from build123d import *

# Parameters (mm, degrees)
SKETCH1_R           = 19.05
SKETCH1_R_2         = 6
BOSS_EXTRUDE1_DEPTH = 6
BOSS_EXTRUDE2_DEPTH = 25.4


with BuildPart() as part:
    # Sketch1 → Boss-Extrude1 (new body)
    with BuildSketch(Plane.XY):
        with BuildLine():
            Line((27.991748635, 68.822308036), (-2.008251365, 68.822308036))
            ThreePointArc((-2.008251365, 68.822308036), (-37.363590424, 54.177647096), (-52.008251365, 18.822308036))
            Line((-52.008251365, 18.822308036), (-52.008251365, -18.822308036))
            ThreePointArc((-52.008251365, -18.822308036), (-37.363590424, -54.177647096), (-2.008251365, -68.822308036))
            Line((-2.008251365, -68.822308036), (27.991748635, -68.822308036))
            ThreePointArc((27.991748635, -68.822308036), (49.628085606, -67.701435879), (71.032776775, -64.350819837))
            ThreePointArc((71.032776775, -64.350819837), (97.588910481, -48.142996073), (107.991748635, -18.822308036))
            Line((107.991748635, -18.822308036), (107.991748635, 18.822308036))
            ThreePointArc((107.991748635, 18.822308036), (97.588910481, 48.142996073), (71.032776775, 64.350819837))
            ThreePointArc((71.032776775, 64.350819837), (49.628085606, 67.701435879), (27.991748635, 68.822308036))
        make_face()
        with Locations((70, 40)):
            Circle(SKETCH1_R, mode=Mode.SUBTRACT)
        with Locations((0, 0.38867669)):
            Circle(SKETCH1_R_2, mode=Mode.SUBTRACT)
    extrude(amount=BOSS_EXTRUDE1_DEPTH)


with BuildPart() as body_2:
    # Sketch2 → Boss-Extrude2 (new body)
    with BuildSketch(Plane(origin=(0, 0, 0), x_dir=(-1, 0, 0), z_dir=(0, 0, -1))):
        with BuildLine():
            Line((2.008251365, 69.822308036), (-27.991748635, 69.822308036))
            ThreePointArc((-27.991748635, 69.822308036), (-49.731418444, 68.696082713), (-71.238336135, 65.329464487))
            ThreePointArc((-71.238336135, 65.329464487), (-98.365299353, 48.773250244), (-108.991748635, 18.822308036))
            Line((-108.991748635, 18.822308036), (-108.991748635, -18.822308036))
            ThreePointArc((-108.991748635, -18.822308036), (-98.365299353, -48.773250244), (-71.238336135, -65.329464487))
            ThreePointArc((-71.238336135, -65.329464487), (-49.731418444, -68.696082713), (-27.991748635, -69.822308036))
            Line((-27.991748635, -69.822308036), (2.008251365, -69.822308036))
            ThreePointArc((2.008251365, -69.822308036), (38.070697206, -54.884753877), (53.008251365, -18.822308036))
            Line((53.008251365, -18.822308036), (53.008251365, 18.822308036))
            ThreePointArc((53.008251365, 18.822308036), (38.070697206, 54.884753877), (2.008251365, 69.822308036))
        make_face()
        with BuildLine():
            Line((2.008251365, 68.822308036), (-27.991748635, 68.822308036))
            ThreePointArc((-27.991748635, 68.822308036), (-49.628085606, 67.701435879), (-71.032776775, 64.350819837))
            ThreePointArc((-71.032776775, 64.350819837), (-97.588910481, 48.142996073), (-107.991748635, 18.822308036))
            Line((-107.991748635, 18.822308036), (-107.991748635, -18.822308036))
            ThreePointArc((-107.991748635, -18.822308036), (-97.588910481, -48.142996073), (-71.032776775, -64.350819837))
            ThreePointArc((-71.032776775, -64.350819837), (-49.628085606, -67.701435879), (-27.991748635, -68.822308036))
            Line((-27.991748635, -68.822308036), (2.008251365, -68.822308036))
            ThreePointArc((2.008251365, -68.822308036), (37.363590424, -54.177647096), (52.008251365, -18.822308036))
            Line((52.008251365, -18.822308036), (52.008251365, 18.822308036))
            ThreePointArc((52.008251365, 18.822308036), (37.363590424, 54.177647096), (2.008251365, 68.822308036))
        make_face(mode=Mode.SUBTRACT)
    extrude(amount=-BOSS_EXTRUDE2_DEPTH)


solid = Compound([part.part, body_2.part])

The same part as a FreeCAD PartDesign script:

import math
import FreeCAD as App
import Part
import Sketcher

V = App.Vector
Q = App.Units.Quantity

doc = App.newDocument("Part")
body = doc.addObject("PartDesign::Body", "Body")

# Sketch on XY plane
sketch1 = doc.addObject("Sketcher::SketchObject", "Sketch")
body.addObject(sketch1)
sketch1.AttachmentSupport = (doc.XY_Plane, [""])
sketch1.MapMode = "FlatFace"
sketch1.addGeometry(Part.LineSegment(V(28, 69, 0), V(-2, 69, 0)), False)
sketch1.addGeometry(Part.ArcOfCircle(Part.Circle(V(-2, 19, 0), V(0, 0, 1), 50), math.radians(90), math.radians(180)), False)
sketch1.addGeometry(Part.LineSegment(V(-52, 19, 0), V(-52, -19, 0)), False)
sketch1.addGeometry(Part.ArcOfCircle(Part.Circle(V(-2, -19, 0), V(0, 0, 1), 50), math.radians(180), math.radians(270)), False)
sketch1.addGeometry(Part.LineSegment(V(-2, -69, 0), V(28, -69, 0)), False)
sketch1.addGeometry(Part.ArcOfCircle(Part.Circle(V(28, 141, 0), V(0, 0, 1), 209), math.radians(-90), math.radians(-78.14)), False)
sketch1.addGeometry(Part.ArcOfCircle(Part.Circle(V(61, -19, 0), V(0, 0, 1), 47), math.radians(-78), math.radians(0)), False)
sketch1.addGeometry(Part.LineSegment(V(108, -19, 0), V(108, 19, 0)), False)
sketch1.addGeometry(Part.ArcOfCircle(Part.Circle(V(61, 19, 0), V(0, 0, 1), 47), math.radians(0), math.radians(78)), False)
sketch1.addGeometry(Part.ArcOfCircle(Part.Circle(V(28, -141, 0), V(0, 0, 1), 209), math.radians(78.14), math.radians(90)), False)
sketch1.addGeometry(Part.Circle(V(0, 0, 0), V(0, 0, 1), 6), False)
sketch1.addGeometry(Part.Circle(V(70, 40, 0), V(0, 0, 1), 19), False)
sketch1.addConstraint(Sketcher.Constraint("Tangent", 0, 2, 1, 1))
sketch1.addConstraint(Sketcher.Constraint("Tangent", 1, 2, 2, 1))
sketch1.addConstraint(Sketcher.Constraint("Tangent", 2, 2, 3, 1))
sketch1.addConstraint(Sketcher.Constraint("Tangent", 3, 2, 4, 1))
sketch1.addConstraint(Sketcher.Constraint("Tangent", 4, 2, 5, 1))
sketch1.addConstraint(Sketcher.Constraint("Tangent", 5, 2, 6, 1))
sketch1.addConstraint(Sketcher.Constraint("Tangent", 6, 2, 7, 1))
sketch1.addConstraint(Sketcher.Constraint("Tangent", 7, 2, 8, 1))
sketch1.addConstraint(Sketcher.Constraint("Tangent", 8, 2, 9, 1))
sketch1.addConstraint(Sketcher.Constraint("Tangent", 9, 2, 0, 1))
sketch1.addConstraint(Sketcher.Constraint("Horizontal", 0))
sketch1.addConstraint(Sketcher.Constraint("Vertical", 2))
sketch1.addConstraint(Sketcher.Constraint("Horizontal", 4))
sketch1.addConstraint(Sketcher.Constraint("Vertical", 7))
sketch1.addConstraint(Sketcher.Constraint("Equal", 1, 3))
sketch1.addConstraint(Sketcher.Constraint("Equal", 6, 8))
sketch1.addConstraint(Sketcher.Constraint("Equal", 5, 9))
sketch1.addConstraint(Sketcher.Constraint("Symmetric", 5, 3, 9, 3, -1))
sketch1.addConstraint(Sketcher.Constraint("PointOnObject", 10, 3, -2))
sketch1.addConstraint(Sketcher.Constraint("Horizontal", 3, 3, 6, 3))
sketch1.addConstraint(Sketcher.Constraint("Diameter", 10, Q("12 mm")))
sketch1.addConstraint(Sketcher.Constraint("Radius", 1, Q("50 mm")))
sketch1.addConstraint(Sketcher.Constraint("Diameter", 11, Q("38.1 mm")))
sketch1.addConstraint(Sketcher.Constraint("DistanceX", 0, 2, 0, 1, Q("30 mm")))
sketch1.addConstraint(Sketcher.Constraint("DistanceX", -1, 1, 11, 3, Q("70 mm")))
sketch1.addConstraint(Sketcher.Constraint("DistanceY", -1, 1, 11, 3, Q("40 mm")))
sketch1.addConstraint(Sketcher.Constraint("DistanceX", 4, 2, 6, 2, Q("80 mm")))
sketch1.addConstraint(Sketcher.Constraint("Radius", 5, Q("209.38491 mm")))
sketch1.addConstraint(Sketcher.Constraint("DistanceY", 2, 2, 2, 1, Q("37.644616 mm")))
sketch1.addConstraint(Sketcher.Constraint("DistanceX", 1, 3, -1, 1, Q("2.008251 mm")))
sketch1.addConstraint(Sketcher.Constraint("DistanceY", 10, 3, 1, 3, Q("18.433631 mm")))
pad1 = doc.addObject("PartDesign::Pad", "Pad")
body.addObject(pad1)
pad1.Profile = sketch1
pad1.Length = 6
body2 = doc.addObject("PartDesign::Body", "Body001")

# Sketch on XY plane
sketch2 = doc.addObject("Sketcher::SketchObject", "Sketch001")
body2.addObject(sketch2)
sketch2.AttachmentSupport = (doc.getObject("XY_Plane001"), [""])
sketch2.MapMode = "FlatFace"
sketch2.addGeometry(Part.LineSegment(V(-2, 70, 0), V(28, 70, 0)), False)
sketch2.addGeometry(Part.ArcOfCircle(Part.Circle(V(28, -141, 0), V(0, 0, 1), 210), math.radians(78.14), math.radians(90)), False)
sketch2.addGeometry(Part.ArcOfCircle(Part.Circle(V(61, 19, 0), V(0, 0, 1), 48), math.radians(0), math.radians(78)), False)
sketch2.addGeometry(Part.LineSegment(V(109, 19, 0), V(109, -19, 0)), False)
sketch2.addGeometry(Part.ArcOfCircle(Part.Circle(V(61, -19, 0), V(0, 0, 1), 48), math.radians(-78), math.radians(0)), False)
sketch2.addGeometry(Part.ArcOfCircle(Part.Circle(V(28, 141, 0), V(0, 0, 1), 210), math.radians(-90), math.radians(-78.14)), False)
sketch2.addGeometry(Part.LineSegment(V(28, -70, 0), V(-2, -70, 0)), False)
sketch2.addGeometry(Part.ArcOfCircle(Part.Circle(V(-2, -19, 0), V(0, 0, 1), 51), math.radians(180), math.radians(270)), False)
sketch2.addGeometry(Part.LineSegment(V(-53, -19, 0), V(-53, 19, 0)), False)
sketch2.addGeometry(Part.ArcOfCircle(Part.Circle(V(-2, 19, 0), V(0, 0, 1), 51), math.radians(90), math.radians(180)), False)
sketch2.addGeometry(Part.LineSegment(V(28, 69, 0), V(-2, 69, 0)), False)
sketch2.addGeometry(Part.ArcOfCircle(Part.Circle(V(-2, 19, 0), V(0, 0, 1), 50), math.radians(90), math.radians(180)), False)
sketch2.addGeometry(Part.LineSegment(V(-52, 19, 0), V(-52, -19, 0)), False)
sketch2.addGeometry(Part.ArcOfCircle(Part.Circle(V(-2, -19, 0), V(0, 0, 1), 50), math.radians(180), math.radians(270)), False)
sketch2.addGeometry(Part.LineSegment(V(-2, -69, 0), V(28, -69, 0)), False)
sketch2.addGeometry(Part.ArcOfCircle(Part.Circle(V(28, 141, 0), V(0, 0, 1), 209), math.radians(-90), math.radians(-78.14)), False)
sketch2.addGeometry(Part.ArcOfCircle(Part.Circle(V(61, -19, 0), V(0, 0, 1), 47), math.radians(-78), math.radians(0)), False)
sketch2.addGeometry(Part.LineSegment(V(108, -19, 0), V(108, 19, 0)), False)
sketch2.addGeometry(Part.ArcOfCircle(Part.Circle(V(61, 19, 0), V(0, 0, 1), 47), math.radians(0), math.radians(78)), False)
sketch2.addGeometry(Part.ArcOfCircle(Part.Circle(V(28, -141, 0), V(0, 0, 1), 209), math.radians(78.14), math.radians(90)), False)
sketch2.addConstraint(Sketcher.Constraint("Tangent", 0, 2, 1, 2))
sketch2.addConstraint(Sketcher.Constraint("Tangent", 1, 1, 2, 2))
sketch2.addConstraint(Sketcher.Constraint("Tangent", 2, 1, 3, 1))
sketch2.addConstraint(Sketcher.Constraint("Tangent", 3, 2, 4, 2))
sketch2.addConstraint(Sketcher.Constraint("Tangent", 4, 1, 5, 2))
sketch2.addConstraint(Sketcher.Constraint("Tangent", 5, 1, 6, 1))
sketch2.addConstraint(Sketcher.Constraint("Tangent", 6, 2, 7, 2))
sketch2.addConstraint(Sketcher.Constraint("Tangent", 7, 1, 8, 1))
sketch2.addConstraint(Sketcher.Constraint("Tangent", 8, 2, 9, 2))
sketch2.addConstraint(Sketcher.Constraint("Tangent", 9, 1, 0, 1))
sketch2.addConstraint(Sketcher.Constraint("Tangent", 10, 2, 11, 1))
sketch2.addConstraint(Sketcher.Constraint("Tangent", 11, 2, 12, 1))
sketch2.addConstraint(Sketcher.Constraint("Tangent", 12, 2, 13, 1))
sketch2.addConstraint(Sketcher.Constraint("Tangent", 13, 2, 14, 1))
sketch2.addConstraint(Sketcher.Constraint("Tangent", 14, 2, 15, 1))
sketch2.addConstraint(Sketcher.Constraint("Tangent", 15, 2, 16, 1))
sketch2.addConstraint(Sketcher.Constraint("Tangent", 16, 2, 17, 1))
sketch2.addConstraint(Sketcher.Constraint("Tangent", 17, 2, 18, 1))
sketch2.addConstraint(Sketcher.Constraint("Tangent", 18, 2, 19, 1))
sketch2.addConstraint(Sketcher.Constraint("Tangent", 19, 2, 10, 1))
sketch2.addConstraint(Sketcher.Constraint("Horizontal", 0))
sketch2.addConstraint(Sketcher.Constraint("Vertical", 3))
sketch2.addConstraint(Sketcher.Constraint("Horizontal", 6))
sketch2.addConstraint(Sketcher.Constraint("Vertical", 8))
sketch2.addConstraint(Sketcher.Constraint("Horizontal", 10))
sketch2.addConstraint(Sketcher.Constraint("Vertical", 12))
sketch2.addConstraint(Sketcher.Constraint("Horizontal", 14))
sketch2.addConstraint(Sketcher.Constraint("Vertical", 17))
sketch2.addConstraint(Sketcher.Constraint("Coincident", 11, 3, 9, 3))
sketch2.addConstraint(Sketcher.Constraint("Coincident", 13, 3, 7, 3))
sketch2.addConstraint(Sketcher.Constraint("Coincident", 15, 3, 5, 3))
sketch2.addConstraint(Sketcher.Constraint("Coincident", 16, 3, 4, 3))
sketch2.addConstraint(Sketcher.Constraint("Coincident", 18, 3, 2, 3))
sketch2.addConstraint(Sketcher.Constraint("Equal", 2, 4))
sketch2.addConstraint(Sketcher.Constraint("Equal", 1, 5))
sketch2.addConstraint(Sketcher.Constraint("Equal", 7, 9))
sketch2.addConstraint(Sketcher.Constraint("Equal", 15, 19))
sketch2.addConstraint(Sketcher.Constraint("Symmetric", 1, 3, 5, 3, -1))
sketch2.addConstraint(Sketcher.Constraint("Horizontal", 4, 3, 7, 3))
sketch2.addConstraint(Sketcher.Constraint("Radius", 7, Q("51 mm")))
sketch2.addConstraint(Sketcher.Constraint("Radius", 11, Q("50 mm")))
sketch2.addConstraint(Sketcher.Constraint("DistanceX", 0, 1, 0, 2, Q("30 mm")))
sketch2.addConstraint(Sketcher.Constraint("Radius", 1, Q("210.38491 mm")))
sketch2.addConstraint(Sketcher.Constraint("Radius", 2, Q("47.522006 mm")))
sketch2.addConstraint(Sketcher.Constraint("DistanceY", 3, 2, 3, 1, Q("37.644616 mm")))
sketch2.addConstraint(Sketcher.Constraint("DistanceX", -1, 1, 1, 3, Q("27.991749 mm")))
pad2 = doc.addObject("PartDesign::Pad", "Pad001")
body2.addObject(pad2)
pad2.Profile = sketch2
pad2.Length = 25.4

doc.recompute()
